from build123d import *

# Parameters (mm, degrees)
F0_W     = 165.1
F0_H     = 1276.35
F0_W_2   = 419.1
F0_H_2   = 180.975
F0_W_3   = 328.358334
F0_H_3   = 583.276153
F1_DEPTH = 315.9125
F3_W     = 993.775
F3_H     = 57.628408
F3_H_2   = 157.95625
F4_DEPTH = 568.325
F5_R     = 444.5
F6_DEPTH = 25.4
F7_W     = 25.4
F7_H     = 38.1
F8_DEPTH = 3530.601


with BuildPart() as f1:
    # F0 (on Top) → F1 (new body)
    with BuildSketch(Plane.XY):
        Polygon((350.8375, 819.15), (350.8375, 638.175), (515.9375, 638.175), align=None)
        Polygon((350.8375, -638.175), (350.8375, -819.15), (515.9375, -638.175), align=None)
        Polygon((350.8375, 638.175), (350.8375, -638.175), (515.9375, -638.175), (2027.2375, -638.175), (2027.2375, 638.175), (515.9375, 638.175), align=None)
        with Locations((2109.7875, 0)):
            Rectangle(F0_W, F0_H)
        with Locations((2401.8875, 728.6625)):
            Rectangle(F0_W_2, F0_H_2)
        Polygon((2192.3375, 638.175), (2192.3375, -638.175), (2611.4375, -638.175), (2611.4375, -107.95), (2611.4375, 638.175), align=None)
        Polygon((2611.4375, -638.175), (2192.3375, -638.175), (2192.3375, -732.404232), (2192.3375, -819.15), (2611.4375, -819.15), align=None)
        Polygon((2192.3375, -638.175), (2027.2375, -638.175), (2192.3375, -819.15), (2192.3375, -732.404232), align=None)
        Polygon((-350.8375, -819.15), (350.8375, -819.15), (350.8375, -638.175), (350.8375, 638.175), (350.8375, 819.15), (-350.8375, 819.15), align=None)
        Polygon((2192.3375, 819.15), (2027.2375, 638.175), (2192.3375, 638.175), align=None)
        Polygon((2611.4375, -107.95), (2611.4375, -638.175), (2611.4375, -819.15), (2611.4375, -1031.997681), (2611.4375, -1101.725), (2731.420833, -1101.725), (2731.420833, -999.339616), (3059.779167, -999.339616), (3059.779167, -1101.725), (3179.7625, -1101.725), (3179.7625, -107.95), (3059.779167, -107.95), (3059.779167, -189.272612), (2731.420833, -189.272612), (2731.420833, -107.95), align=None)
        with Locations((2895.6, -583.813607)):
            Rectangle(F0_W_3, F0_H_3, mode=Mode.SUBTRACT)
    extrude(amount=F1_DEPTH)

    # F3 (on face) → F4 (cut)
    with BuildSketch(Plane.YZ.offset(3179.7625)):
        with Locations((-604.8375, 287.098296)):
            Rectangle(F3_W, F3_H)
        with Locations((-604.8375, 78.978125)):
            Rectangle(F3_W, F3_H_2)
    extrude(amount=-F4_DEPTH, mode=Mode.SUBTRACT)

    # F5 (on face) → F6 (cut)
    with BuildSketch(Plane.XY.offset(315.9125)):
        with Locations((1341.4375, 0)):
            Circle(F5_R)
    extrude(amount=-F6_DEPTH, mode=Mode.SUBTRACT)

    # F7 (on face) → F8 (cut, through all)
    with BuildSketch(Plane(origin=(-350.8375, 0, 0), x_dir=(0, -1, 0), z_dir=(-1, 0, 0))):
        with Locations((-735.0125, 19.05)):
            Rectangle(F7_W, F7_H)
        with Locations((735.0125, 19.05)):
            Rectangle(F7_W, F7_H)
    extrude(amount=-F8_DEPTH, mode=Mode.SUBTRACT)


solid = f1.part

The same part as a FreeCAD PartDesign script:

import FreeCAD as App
import Part
import Sketcher
Q = App.Units.Quantity

doc = App.newDocument("Part")
params = doc.addObject("Spreadsheet::Sheet", "Params")
for row, (alias, value) in enumerate([
    ("sketch1_width", "59.5 in"),
    ("sketch1_width2", "16.5 in"),
    ("sketch1_height", "36.5 in"),
    ("sketch1_height2", "64.5 in"),
    ("sketch1_width3", "27.625 in"),
    ("pad1_length", "12.4375 in"),
    ("sketch2_width", "39.125 in"),
    ("sketch2_height", "6.21875 in"),
    ("pocket1_length", "22.375 in"),
    ("sketch3_diameter", "35 in"),
    ("pocket2_length", "1 in"),
    ("sketch4_width", "1 in"),
    ("sketch4_height", "1.5 in"),
], start=1):
    params.set(f"A{row}", alias)
    params.set(f"B{row}", "=" + value)
    params.setAlias(f"B{row}", alias)

body = doc.addObject("PartDesign::Body", "Body")

# Sketch on XY plane
sketch1 = doc.addObject("Sketcher::SketchObject", "Sketch")
body.addObject(sketch1)
sketch1.AttachmentSupport = (doc.XY_Plane, [""])
sketch1.MapMode = "FlatFace"
sketch1.addGeometry([
    Part.LineSegment(App.Vector(350.8375, -819.15, 0), App.Vector(515.9375, -638.175, 0)),  # 0
    Part.LineSegment(App.Vector(515.9375, -638.175, 0), App.Vector(2027.2375, -638.175, 0)),  # 1
    Part.LineSegment(App.Vector(2027.2375, -638.175, 0), App.Vector(2192.3375, -819.15, 0)),  # 2
    Part.LineSegment(App.Vector(2192.3375, -819.15, 0), App.Vector(2611.4375, -819.15, 0)),  # 3
    Part.LineSegment(App.Vector(2611.4375, -819.15, 0), App.Vector(2611.4375, -1101.725, 0)),  # 4
    Part.LineSegment(App.Vector(2611.4375, -1101.725, 0), App.Vector(2731.420833, -1101.725, 0)),  # 5
    Part.LineSegment(App.Vector(2731.420833, -1101.725, 0), App.Vector(2731.420833, -999.339616, 0)),  # 6
    Part.LineSegment(App.Vector(2731.420833, -999.339616, 0), App.Vector(3059.779167, -999.339616, 0)),  # 7
    Part.LineSegment(App.Vector(3059.779167, -999.339616, 0), App.Vector(3059.779167, -1101.725, 0)),  # 8
    Part.LineSegment(App.Vector(3059.779167, -1101.725, 0), App.Vector(3179.7625, -1101.725, 0)),  # 9
    Part.LineSegment(App.Vector(3179.7625, -1101.725, 0), App.Vector(3179.7625, -107.95, 0)),  # 10
    Part.LineSegment(App.Vector(3179.7625, -107.95, 0), App.Vector(3059.779167, -107.95, 0)),  # 11
    Part.LineSegment(App.Vector(3059.779167, -107.95, 0), App.Vector(3059.779167, -189.272612, 0)),  # 12
    Part.LineSegment(App.Vector(3059.779167, -189.272612, 0), App.Vector(2731.420833, -189.272612, 0)),  # 13
    Part.LineSegment(App.Vector(2731.420833, -189.272612, 0), App.Vector(2731.420833, -107.95, 0)),  # 14
    Part.LineSegment(App.Vector(2731.420833, -107.95, 0), App.Vector(2611.4375, -107.95, 0)),  # 15
    Part.LineSegment(App.Vector(2611.4375, -107.95, 0), App.Vector(2611.4375, 819.15, 0)),  # 16
    Part.LineSegment(App.Vector(2611.4375, 819.15, 0), App.Vector(2192.3375, 819.15, 0)),  # 17
    Part.LineSegment(App.Vector(2192.3375, 819.15, 0), App.Vector(2027.2375, 638.175, 0)),  # 18
    Part.LineSegment(App.Vector(2027.2375, 638.175, 0), App.Vector(515.9375, 638.175, 0)),  # 19
    Part.LineSegment(App.Vector(515.9375, 638.175, 0), App.Vector(350.8375, 819.15, 0)),  # 20
    Part.LineSegment(App.Vector(350.8375, 819.15, 0), App.Vector(-350.8375, 819.15, 0)),  # 21
    Part.LineSegment(App.Vector(-350.8375, 819.15, 0), App.Vector(-350.8375, -819.15, 0)),  # 22
    Part.LineSegment(App.Vector(-350.8375, -819.15, 0), App.Vector(350.8375, -819.15, 0)),  # 23
    Part.LineSegment(App.Vector(3059.779167, -875.451683, 0), App.Vector(2731.420833, -875.451683, 0)),  # 24
    Part.LineSegment(App.Vector(2731.420833, -875.451683, 0), App.Vector(2731.420833, -292.17553, 0)),  # 25
    Part.LineSegment(App.Vector(2731.420833, -292.17553, 0), App.Vector(3059.779167, -292.17553, 0)),  # 26
    Part.LineSegment(App.Vector(3059.779167, -292.17553, 0), App.Vector(3059.779167, -875.451683, 0)),  # 27
], False)
sketch1.addConstraint([
    Sketcher.Constraint("Coincident", 0, 2, 1, 1),
    Sketcher.Constraint("Coincident", 1, 2, 2, 1),
    Sketcher.Constraint("Coincident", 2, 2, 3, 1),
    Sketcher.Constraint("Coincident", 3, 2, 4, 1),
    Sketcher.Constraint("Coincident", 4, 2, 5, 1),
    Sketcher.Constraint("Coincident", 5, 2, 6, 1),
    Sketcher.Constraint("Coincident", 6, 2, 7, 1),
    Sketcher.Constraint("Coincident", 7, 2, 8, 1),
    Sketcher.Constraint("Coincident", 8, 2, 9, 1),
    Sketcher.Constraint("Coincident", 9, 2, 10, 1),
    Sketcher.Constraint("Coincident", 10, 2, 11, 1),
    Sketcher.Constraint("Coincident", 11, 2, 12, 1),
    Sketcher.Constraint("Coincident", 12, 2, 13, 1),
    Sketcher.Constraint("Coincident", 13, 2, 14, 1),
    Sketcher.Constraint("Coincident", 14, 2, 15, 1),
    Sketcher.Constraint("Coincident", 15, 2, 16, 1),
    Sketcher.Constraint("Coincident", 16, 2, 17, 1),
    Sketcher.Constraint("Coincident", 17, 2, 18, 1),
    Sketcher.Constraint("Coincident", 18, 2, 19, 1),
    Sketcher.Constraint("Coincident", 19, 2, 20, 1),
    Sketcher.Constraint("Coincident", 20, 2, 21, 1),
    Sketcher.Constraint("Coincident", 21, 2, 22, 1),
    Sketcher.Constraint("Coincident", 22, 2, 23, 1),
    Sketcher.Constraint("Coincident", 23, 2, 0, 1),
    Sketcher.Constraint("Coincident", 24, 2, 25, 1),
    Sketcher.Constraint("Coincident", 25, 2, 26, 1),
    Sketcher.Constraint("Coincident", 26, 2, 27, 1),
    Sketcher.Constraint("Coincident", 27, 2, 24, 1),
    Sketcher.Constraint("Horizontal", 1),
    Sketcher.Constraint("Horizontal", 3),
    Sketcher.Constraint("Vertical", 4),
    Sketcher.Constraint("Horizontal", 5),
    Sketcher.Constraint("Vertical", 6),
    Sketcher.Constraint("Horizontal", 7),
    Sketcher.Constraint("Vertical", 8),
    Sketcher.Constraint("Horizontal", 9),
    Sketcher.Constraint("Vertical", 10),
    Sketcher.Constraint("Horizontal", 11),
    Sketcher.Constraint("Vertical", 12),
    Sketcher.Constraint("Horizontal", 13),
    Sketcher.Constraint("Vertical", 14),
    Sketcher.Constraint("Horizontal", 15),
    Sketcher.Constraint("Vertical", 16),
    Sketcher.Constraint("Horizontal", 17),
    Sketcher.Constraint("Horizontal", 19),
    Sketcher.Constraint("Horizontal", 21),
    Sketcher.Constraint("Vertical", 22),
    Sketcher.Constraint("Horizontal", 23),
    Sketcher.Constraint("Horizontal", 24),
    Sketcher.Constraint("Vertical", 25),
    Sketcher.Constraint("Horizontal", 26),
    Sketcher.Constraint("Vertical", 27),
    Sketcher.Constraint("Symmetric", 20, 2, 22, 2, -1, 1),
    Sketcher.Constraint("Symmetric", 3, 2, 16, 2, -1),
    Sketcher.Constraint("Symmetric", 1, 2, 18, 2, -1),
    Sketcher.Constraint("Parallel", 0, 18),
    Sketcher.Constraint("Parallel", 2, 20),
    Sketcher.Constraint("Horizontal", 5, 2, 8, 2),
    Sketcher.Constraint("Horizontal", 11, 2, 14, 2),
    Sketcher.Constraint("Horizontal", 17, 2, 20, 2),
    Sketcher.Constraint("Vertical", 8, 2, 11, 2),
    Sketcher.Constraint("Vertical", 6, 2, 13, 2),
    Sketcher.Constraint("Vertical", 2, 2, 17, 2),
    Sketcher.Constraint("Vertical", 0, 2, 19, 2),
    Sketcher.Constraint("Vertical", 14, 2, 24, 2),
    Sketcher.Constraint("Vertical", 12, 2, 26, 2),
    Sketcher.Constraint("Equal", 5, 9),
    Sketcher.Constraint("DistanceX", 1, 1, 1, 2, Q("59.5 in")),
    Sketcher.Constraint("DistanceX", 3, 1, 3, 2, Q("16.5 in")),
    Sketcher.Constraint("DistanceY", 16, 1, 16, 2, Q("36.5 in")),
    Sketcher.Constraint("DistanceY", 22, 2, 22, 1, Q("64.5 in")),
    Sketcher.Constraint("DistanceX", 0, 2, 2, 2, Q("66 in")),
    Sketcher.Constraint("DistanceX", 21, 2, 21, 1, Q("27.625 in")),
    Sketcher.Constraint("DistanceY", 4, 2, 4, 1, Q("11.125 in")),
    Sketcher.Constraint("DistanceY", 4, 2, 1, 2, Q("18.25 in")),
    Sketcher.Constraint("DistanceX", -1, 1, 9, 2, Q("125.1875 in")),
    Sketcher.Constraint("DistanceX", 5, 1, 5, 2, Q("119.983333 mm")),
    Sketcher.Constraint("DistanceY", 6, 1, 6, 2, Q("102.385384 mm")),
    Sketcher.Constraint("DistanceY", 12, 2, 12, 1, Q("81.322612 mm")),
    Sketcher.Constraint("DistanceY", 25, 1, 25, 2, Q("583.276153 mm")),
    Sketcher.Constraint("DistanceY", 25, 2, -1, 1, Q("292.17553 mm")),
])
sketch1.setExpression("Constraints[67]", "Params.sketch1_width")
sketch1.setExpression("Constraints[68]", "Params.sketch1_width2")
sketch1.setExpression("Constraints[69]", "Params.sketch1_height")
sketch1.setExpression("Constraints[70]", "Params.sketch1_height2")
sketch1.setExpression("Constraints[72]", "Params.sketch1_width3")
pad1 = doc.addObject("PartDesign::Pad", "Pad")
body.addObject(pad1)
pad1.Profile = sketch1
pad1.setExpression("Length", "Params.pad1_length")

# Sketch on YZ plane
sketch2 = doc.addObject("Sketcher::SketchObject", "Sketch001")
body.addObject(sketch2)
sketch2.AttachmentSupport = (doc.YZ_Plane, [""])
sketch2.MapMode = "FlatFace"
sketch2.AttachmentOffset = App.Placement(App.Vector(0, 0, 125.1875 * 25.4), App.Rotation())
sketch2.addGeometry([
    Part.LineSegment(App.Vector(-1101.725, 315.9125, 0), App.Vector(-1101.725, 258.284092, 0)),  # 0
    Part.LineSegment(App.Vector(-1101.725, 258.284092, 0), App.Vector(-107.95, 258.284092, 0)),  # 1
    Part.LineSegment(App.Vector(-107.95, 258.284092, 0), App.Vector(-107.95, 315.9125, 0)),  # 2
    Part.LineSegment(App.Vector(-107.95, 315.9125, 0), App.Vector(-1101.725, 315.9125, 0)),  # 3
    Part.LineSegment(App.Vector(-1101.725, 157.95625, 0), App.Vector(-1101.725, 0, 0)),  # 4
    Part.LineSegment(App.Vector(-1101.725, 0, 0), App.Vector(-107.95, 0, 0)),  # 5
    Part.LineSegment(App.Vector(-107.95, 0, 0), App.Vector(-107.95, 157.95625, 0)),  # 6
    Part.LineSegment(App.Vector(-107.95, 157.95625, 0), App.Vector(-1101.725, 157.95625, 0)),  # 7
], False)
sketch2.addConstraint([
    Sketcher.Constraint("Coincident", 0, 2, 1, 1),
    Sketcher.Constraint("Coincident", 1, 2, 2, 1),
    Sketcher.Constraint("Coincident", 2, 2, 3, 1),
    Sketcher.Constraint("Coincident", 3, 2, 0, 1),
    Sketcher.Constraint("Coincident", 4, 2, 5, 1),
    Sketcher.Constraint("Coincident", 5, 2, 6, 1),
    Sketcher.Constraint("Coincident", 6, 2, 7, 1),
    Sketcher.Constraint("Coincident", 7, 2, 4, 1),
    Sketcher.Constraint("Vertical", 0),
    Sketcher.Constraint("Horizontal", 1),
    Sketcher.Constraint("Vertical", 2),
    Sketcher.Constraint("Horizontal", 3),
    Sketcher.Constraint("Vertical", 4),
    Sketcher.Constraint("Horizontal", 5),
    Sketcher.Constraint("Vertical", 6),
    Sketcher.Constraint("Horizontal", 7),
    Sketcher.Constraint("PointOnObject", 4, 2, -1),
    Sketcher.Constraint("Vertical", 3, 2, 4, 2),
    Sketcher.Constraint("Vertical", 2, 2, 5, 2),
    Sketcher.Constraint("DistanceX", 1, 1, 1, 2, Q("39.125 in")),
    Sketcher.Constraint("DistanceY", 4, 2, 4, 1, Q("6.21875 in")),
    Sketcher.Constraint("DistanceX", 1, 2, -1, 1, Q("4.25 in")),
    Sketcher.Constraint("DistanceY", -1, 1, 2, 2, Q("12.4375 in")),
    Sketcher.Constraint("DistanceY", 0, 2, 0, 1, Q("57.628408 mm")),
])
sketch2.setExpression("Constraints[19]", "Params.sketch2_width")
sketch2.setExpression("Constraints[20]", "Params.sketch2_height")
pocket1 = doc.addObject("PartDesign::Pocket", "Pocket")
body.addObject(pocket1)
pocket1.Profile = sketch2
pocket1.setExpression("Length", "Params.pocket1_length")

# Sketch on XY plane
sketch3 = doc.addObject("Sketcher::SketchObject", "Sketch002")
body.addObject(sketch3)
sketch3.AttachmentSupport = (doc.XY_Plane, [""])
sketch3.MapMode = "FlatFace"
sketch3.AttachmentOffset = App.Placement(App.Vector(0, 0, 12.4375 * 25.4), App.Rotation())
sketch3.addGeometry(Part.Circle(App.Vector(1341.4375, 0, 0), App.Vector(0, 0, 1), 444.5), False)
sketch3.addConstraint([
    Sketcher.Constraint("PointOnObject", 0, 3, -1),
    Sketcher.Constraint("Diameter", 0, Q("35 in")),
    Sketcher.Constraint("DistanceX", -1, 1, 0, 3, Q("52.8125 in")),
])
sketch3.setExpression("Constraints[1]", "Params.sketch3_diameter")
pocket2 = doc.addObject("PartDesign::Pocket", "Pocket001")
body.addObject(pocket2)
pocket2.Profile = sketch3
pocket2.setExpression("Length", "Params.pocket2_length")

# Sketch on YZ plane
sketch4 = doc.addObject("Sketcher::SketchObject", "Sketch003")
body.addObject(sketch4)
sketch4.AttachmentSupport = (doc.YZ_Plane, [""])
sketch4.MapMode = "FlatFace"
sketch4.AttachmentOffset = App.Placement(App.Vector(0, 0, -13.8125 * 25.4), App.Rotation())
sketch4.addGeometry([
    Part.LineSegment(App.Vector(747.7125, 38.1, 0), App.Vector(747.7125, 0, 0)),  # 0
    Part.LineSegment(App.Vector(747.7125, 0, 0), App.Vector(722.3125, 0, 0)),  # 1
    Part.LineSegment(App.Vector(722.3125, 0, 0), App.Vector(722.3125, 38.1, 0)),  # 2
    Part.LineSegment(App.Vector(722.3125, 38.1, 0), App.Vector(747.7125, 38.1, 0)),  # 3
    Part.LineSegment(App.Vector(-722.3125, 38.1, 0), App.Vector(-722.3125, 0, 0)),  # 4
    Part.LineSegment(App.Vector(-722.3125, 0, 0), App.Vector(-747.7125, 0, 0)),  # 5
    Part.LineSegment(App.Vector(-747.7125, 0, 0), App.Vector(-747.7125, 38.1, 0)),  # 6
    Part.LineSegment(App.Vector(-747.7125, 38.1, 0), App.Vector(-722.3125, 38.1, 0)),  # 7
], False)
sketch4.addConstraint([
    Sketcher.Constraint("Coincident", 0, 2, 1, 1),
    Sketcher.Constraint("Coincident", 1, 2, 2, 1),
    Sketcher.Constraint("Coincident", 2, 2, 3, 1),
    Sketcher.Constraint("Coincident", 3, 2, 0, 1),
    Sketcher.Constraint("Coincident", 4, 2, 5, 1),
    Sketcher.Constraint("Coincident", 5, 2, 6, 1),
    Sketcher.Constraint("Coincident", 6, 2, 7, 1),
    Sketcher.Constraint("Coincident", 7, 2, 4, 1),
    Sketcher.Constraint("Vertical", 0),
    Sketcher.Constraint("Horizontal", 1),
    Sketcher.Constraint("Vertical", 2),
    Sketcher.Constraint("Horizontal", 3),
    Sketcher.Constraint("Vertical", 4),
    Sketcher.Constraint("Horizontal", 5),
    Sketcher.Constraint("Vertical", 6),
    Sketcher.Constraint("Horizontal", 7),
    Sketcher.Constraint("Symmetric", 1, 2, 4, 2, -1, 1),
    Sketcher.Constraint("Symmetric", 0, 2, 5, 2, -2),
    Sketcher.Constraint("Horizontal", 3, 2, 6, 2),
    Sketcher.Constraint("DistanceX", 1, 2, 1, 1, Q("1 in")),
    Sketcher.Constraint("DistanceY", 0, 2, 0, 1, Q("1.5 in")),
    Sketcher.Constraint("DistanceX", -1, 1, 0, 2, Q("29.4375 in")),
])
sketch4.setExpression("Constraints[19]", "Params.sketch4_width")
sketch4.setExpression("Constraints[20]", "Params.sketch4_height")
pocket3 = doc.addObject("PartDesign::Pocket", "Pocket002")
body.addObject(pocket3)
pocket3.Profile = sketch4
pocket3.Type = "ThroughAll"
pocket3.Reversed = True

doc.recompute()
